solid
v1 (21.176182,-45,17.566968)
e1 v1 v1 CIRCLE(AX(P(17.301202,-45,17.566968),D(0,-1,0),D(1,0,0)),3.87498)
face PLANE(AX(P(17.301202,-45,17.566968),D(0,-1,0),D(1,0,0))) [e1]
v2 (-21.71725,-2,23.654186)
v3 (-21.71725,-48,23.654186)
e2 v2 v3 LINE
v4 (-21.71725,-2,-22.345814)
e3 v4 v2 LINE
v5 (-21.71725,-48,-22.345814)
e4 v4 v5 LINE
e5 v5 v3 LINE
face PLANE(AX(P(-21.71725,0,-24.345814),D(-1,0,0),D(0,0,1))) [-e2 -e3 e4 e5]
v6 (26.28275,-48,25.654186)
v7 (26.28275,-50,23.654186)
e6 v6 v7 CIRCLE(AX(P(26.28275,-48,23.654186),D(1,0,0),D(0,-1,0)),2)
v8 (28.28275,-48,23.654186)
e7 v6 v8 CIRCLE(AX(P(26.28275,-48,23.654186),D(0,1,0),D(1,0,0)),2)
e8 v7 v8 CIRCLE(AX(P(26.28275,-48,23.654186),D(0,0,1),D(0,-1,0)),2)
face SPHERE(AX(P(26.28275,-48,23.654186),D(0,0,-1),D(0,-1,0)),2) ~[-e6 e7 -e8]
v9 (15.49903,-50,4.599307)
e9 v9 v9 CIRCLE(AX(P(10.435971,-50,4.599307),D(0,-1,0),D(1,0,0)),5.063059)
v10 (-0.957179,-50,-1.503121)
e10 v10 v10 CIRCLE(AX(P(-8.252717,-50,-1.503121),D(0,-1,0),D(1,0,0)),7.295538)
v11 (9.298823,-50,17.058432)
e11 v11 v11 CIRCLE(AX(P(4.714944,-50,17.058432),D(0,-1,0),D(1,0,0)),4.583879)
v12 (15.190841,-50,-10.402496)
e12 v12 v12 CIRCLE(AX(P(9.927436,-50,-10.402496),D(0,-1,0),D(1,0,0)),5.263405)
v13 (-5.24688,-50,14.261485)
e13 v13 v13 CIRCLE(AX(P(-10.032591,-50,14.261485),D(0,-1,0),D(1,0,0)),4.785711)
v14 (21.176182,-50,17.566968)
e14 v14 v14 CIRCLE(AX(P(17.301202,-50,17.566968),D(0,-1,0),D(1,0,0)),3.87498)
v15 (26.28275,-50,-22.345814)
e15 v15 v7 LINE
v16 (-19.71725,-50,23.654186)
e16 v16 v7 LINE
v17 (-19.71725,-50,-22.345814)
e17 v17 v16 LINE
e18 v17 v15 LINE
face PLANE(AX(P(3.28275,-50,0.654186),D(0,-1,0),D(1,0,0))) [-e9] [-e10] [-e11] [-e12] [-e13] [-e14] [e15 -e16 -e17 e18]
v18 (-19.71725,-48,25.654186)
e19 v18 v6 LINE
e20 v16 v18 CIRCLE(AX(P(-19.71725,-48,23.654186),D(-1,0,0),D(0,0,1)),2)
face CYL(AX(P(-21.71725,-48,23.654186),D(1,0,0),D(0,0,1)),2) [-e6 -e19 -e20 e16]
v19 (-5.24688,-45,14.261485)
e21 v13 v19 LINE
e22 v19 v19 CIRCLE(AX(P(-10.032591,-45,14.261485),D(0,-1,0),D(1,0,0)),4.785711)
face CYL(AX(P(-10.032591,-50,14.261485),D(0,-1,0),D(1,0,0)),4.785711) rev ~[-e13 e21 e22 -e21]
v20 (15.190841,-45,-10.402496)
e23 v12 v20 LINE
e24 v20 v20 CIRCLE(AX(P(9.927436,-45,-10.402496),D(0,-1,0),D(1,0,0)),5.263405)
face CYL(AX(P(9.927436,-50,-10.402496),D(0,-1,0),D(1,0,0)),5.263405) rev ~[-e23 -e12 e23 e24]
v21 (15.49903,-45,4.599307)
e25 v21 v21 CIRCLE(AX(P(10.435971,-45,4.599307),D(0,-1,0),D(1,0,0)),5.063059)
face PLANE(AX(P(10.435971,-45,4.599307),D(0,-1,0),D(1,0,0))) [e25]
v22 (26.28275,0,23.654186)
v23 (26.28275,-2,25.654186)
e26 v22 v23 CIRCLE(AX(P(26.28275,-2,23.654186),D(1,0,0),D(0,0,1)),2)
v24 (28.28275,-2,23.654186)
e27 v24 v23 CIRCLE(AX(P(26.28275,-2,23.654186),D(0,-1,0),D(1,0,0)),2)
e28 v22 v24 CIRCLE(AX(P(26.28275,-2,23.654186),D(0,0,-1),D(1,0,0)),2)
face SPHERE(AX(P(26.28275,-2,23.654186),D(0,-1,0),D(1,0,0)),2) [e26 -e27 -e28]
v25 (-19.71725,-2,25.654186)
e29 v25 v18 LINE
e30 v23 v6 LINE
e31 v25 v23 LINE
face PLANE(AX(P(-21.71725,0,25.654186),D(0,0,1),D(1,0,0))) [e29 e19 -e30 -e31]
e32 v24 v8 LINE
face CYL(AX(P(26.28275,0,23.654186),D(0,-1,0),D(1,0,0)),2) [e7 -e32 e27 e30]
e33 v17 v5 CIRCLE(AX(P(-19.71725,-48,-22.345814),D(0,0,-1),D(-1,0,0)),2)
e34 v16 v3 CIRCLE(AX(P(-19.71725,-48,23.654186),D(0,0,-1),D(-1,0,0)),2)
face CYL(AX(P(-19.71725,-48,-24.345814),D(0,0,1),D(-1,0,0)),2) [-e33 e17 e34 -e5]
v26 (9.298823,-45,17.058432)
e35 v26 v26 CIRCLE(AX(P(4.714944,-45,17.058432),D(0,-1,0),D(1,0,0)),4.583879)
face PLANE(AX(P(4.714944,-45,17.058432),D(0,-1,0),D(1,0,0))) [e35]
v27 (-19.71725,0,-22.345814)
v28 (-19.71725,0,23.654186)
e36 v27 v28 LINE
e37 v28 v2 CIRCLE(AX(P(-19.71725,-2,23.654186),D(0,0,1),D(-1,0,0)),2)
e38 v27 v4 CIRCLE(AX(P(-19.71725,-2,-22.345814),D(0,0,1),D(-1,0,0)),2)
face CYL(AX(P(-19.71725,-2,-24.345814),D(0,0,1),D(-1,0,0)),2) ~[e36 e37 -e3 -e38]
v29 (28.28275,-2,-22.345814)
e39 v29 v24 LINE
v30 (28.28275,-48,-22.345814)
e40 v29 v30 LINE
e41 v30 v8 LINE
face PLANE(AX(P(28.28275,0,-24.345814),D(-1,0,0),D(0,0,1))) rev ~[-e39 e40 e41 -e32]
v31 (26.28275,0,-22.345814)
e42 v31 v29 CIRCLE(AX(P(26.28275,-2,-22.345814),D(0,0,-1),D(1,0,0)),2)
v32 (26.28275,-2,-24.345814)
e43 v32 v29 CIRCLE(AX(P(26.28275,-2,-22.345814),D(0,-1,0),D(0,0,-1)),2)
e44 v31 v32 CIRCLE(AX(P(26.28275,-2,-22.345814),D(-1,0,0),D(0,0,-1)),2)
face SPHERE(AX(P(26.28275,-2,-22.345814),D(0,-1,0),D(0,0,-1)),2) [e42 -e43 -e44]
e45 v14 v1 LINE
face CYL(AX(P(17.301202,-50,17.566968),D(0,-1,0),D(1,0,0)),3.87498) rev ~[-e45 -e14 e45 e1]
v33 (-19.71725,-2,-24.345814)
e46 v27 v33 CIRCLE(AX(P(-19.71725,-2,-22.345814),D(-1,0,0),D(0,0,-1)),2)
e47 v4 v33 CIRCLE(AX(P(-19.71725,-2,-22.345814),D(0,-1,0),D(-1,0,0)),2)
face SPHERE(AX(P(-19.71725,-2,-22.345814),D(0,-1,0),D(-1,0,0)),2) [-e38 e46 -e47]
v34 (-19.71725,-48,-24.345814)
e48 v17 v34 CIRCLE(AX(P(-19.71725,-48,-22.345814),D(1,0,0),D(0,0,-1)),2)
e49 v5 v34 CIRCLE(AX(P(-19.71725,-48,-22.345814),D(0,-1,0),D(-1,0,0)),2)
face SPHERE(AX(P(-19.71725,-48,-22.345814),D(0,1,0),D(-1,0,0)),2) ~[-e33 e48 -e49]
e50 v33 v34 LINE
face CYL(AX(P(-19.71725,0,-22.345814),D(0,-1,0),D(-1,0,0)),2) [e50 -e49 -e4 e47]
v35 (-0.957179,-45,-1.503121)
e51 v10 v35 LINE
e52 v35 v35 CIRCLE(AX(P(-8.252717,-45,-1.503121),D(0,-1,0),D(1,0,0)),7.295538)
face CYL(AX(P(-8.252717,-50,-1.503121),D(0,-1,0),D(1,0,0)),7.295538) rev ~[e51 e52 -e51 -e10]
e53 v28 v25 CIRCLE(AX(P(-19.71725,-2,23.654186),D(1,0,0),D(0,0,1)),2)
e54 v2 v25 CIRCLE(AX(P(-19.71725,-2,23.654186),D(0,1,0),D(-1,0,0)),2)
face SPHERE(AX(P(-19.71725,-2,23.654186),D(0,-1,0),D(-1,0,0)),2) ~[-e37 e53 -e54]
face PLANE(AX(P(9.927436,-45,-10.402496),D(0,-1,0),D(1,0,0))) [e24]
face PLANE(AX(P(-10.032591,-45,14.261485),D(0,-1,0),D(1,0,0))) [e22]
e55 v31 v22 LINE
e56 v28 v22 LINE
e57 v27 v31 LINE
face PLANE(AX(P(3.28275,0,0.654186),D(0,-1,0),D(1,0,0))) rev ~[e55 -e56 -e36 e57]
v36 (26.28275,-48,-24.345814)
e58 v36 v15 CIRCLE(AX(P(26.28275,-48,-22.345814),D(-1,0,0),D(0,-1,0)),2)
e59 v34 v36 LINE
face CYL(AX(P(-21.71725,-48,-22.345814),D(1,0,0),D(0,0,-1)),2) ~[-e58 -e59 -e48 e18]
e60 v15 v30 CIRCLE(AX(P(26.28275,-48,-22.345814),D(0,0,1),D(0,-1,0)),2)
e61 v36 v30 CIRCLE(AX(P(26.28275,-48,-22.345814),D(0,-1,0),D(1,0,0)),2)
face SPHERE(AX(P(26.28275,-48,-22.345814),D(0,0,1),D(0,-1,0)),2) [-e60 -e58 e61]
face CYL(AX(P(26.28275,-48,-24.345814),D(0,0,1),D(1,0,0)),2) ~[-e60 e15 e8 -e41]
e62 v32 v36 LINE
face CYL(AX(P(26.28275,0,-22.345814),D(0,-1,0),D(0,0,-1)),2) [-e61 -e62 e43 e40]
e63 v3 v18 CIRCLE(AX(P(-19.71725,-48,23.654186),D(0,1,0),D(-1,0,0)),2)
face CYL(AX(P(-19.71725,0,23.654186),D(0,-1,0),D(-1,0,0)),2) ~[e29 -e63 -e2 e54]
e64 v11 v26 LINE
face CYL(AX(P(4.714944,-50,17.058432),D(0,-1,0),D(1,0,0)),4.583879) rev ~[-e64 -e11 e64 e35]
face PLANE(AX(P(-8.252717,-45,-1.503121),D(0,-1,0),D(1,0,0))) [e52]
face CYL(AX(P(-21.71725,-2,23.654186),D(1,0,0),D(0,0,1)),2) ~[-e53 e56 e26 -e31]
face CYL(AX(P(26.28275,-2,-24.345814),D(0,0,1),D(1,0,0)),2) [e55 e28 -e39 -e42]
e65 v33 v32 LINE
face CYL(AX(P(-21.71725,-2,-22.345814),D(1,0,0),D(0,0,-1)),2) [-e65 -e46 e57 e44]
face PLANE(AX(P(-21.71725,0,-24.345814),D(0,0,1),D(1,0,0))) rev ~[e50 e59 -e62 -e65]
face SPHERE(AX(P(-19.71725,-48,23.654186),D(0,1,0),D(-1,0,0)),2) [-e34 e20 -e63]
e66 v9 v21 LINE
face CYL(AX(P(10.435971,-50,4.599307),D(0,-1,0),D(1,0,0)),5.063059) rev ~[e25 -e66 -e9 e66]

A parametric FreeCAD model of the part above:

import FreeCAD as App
import Part
import Sketcher
from FreeCAD import Vector
Q = App.Units.Quantity

doc = App.newDocument("Part")
params = doc.addObject("Spreadsheet::Sheet", "Params")
for row, (alias, value) in enumerate([
    ("sketch1_width", "50 mm"),
    ("pad1_length", "50 mm"),
    ("fillet_radius", "2 mm"),
    ("pocket1_length", "5 mm"),
], start=1):
    params.set(f"A{row}", alias)
    params.set(f"B{row}", "=" + value)
    params.setAlias(f"B{row}", alias)

body = doc.addObject("PartDesign::Body", "Body")

sketch1 = body.newObject("Sketcher::SketchObject", "Sketch")
sketch1.AttachmentSupport = (doc.getObject("XZ_Plane"), [""])
sketch1.MapMode = "FlatFace"
sketch1.addGeometry(Part.LineSegment(Vector(-22, 26, 0), Vector(-22, -24, 0)), False)
sketch1.addGeometry(Part.LineSegment(Vector(-22, -24, 0), Vector(28, -24, 0)), False)
sketch1.addGeometry(Part.LineSegment(Vector(28, -24, 0), Vector(28, 26, 0)), False)
sketch1.addGeometry(Part.LineSegment(Vector(28, 26, 0), Vector(-22, 26, 0)), False)
sketch1.addConstraint(Sketcher.Constraint("Coincident", 0, 2, 1, 1))
sketch1.addConstraint(Sketcher.Constraint("Coincident", 1, 2, 2, 1))
sketch1.addConstraint(Sketcher.Constraint("Coincident", 2, 2, 3, 1))
sketch1.addConstraint(Sketcher.Constraint("Coincident", 3, 2, 0, 1))
sketch1.addConstraint(Sketcher.Constraint("Vertical", 0))
sketch1.addConstraint(Sketcher.Constraint("Horizontal", 1))
sketch1.addConstraint(Sketcher.Constraint("Vertical", 2))
sketch1.addConstraint(Sketcher.Constraint("Horizontal", 3))
sketch1.addConstraint(Sketcher.Constraint("Equal", 3, 0))
sketch1.addConstraint(Sketcher.Constraint("DistanceX", 1, 1, 1, 2, Q("50 mm")))
sketch1.addConstraint(Sketcher.Constraint("DistanceX", 0, 2, -1, 1, Q("21.71725 mm")))
sketch1.addConstraint(Sketcher.Constraint("DistanceY", 0, 2, -1, 1, Q("24.345814 mm")))
sketch1.setExpression("Constraints[9]", "Params.sketch1_width")
pad1 = body.newObject("PartDesign::Pad", "Pad")
pad1.Profile = sketch1
pad1.setExpression("Length", "Params.pad1_length")
doc.recompute()

fillet = body.newObject("PartDesign::Fillet", "Fillet")
fillet.Base = (pad1, ["Edge1"])
fillet.UseAllEdges = True
fillet.setExpression("Radius", "Params.fillet_radius")

sketch2 = body.newObject("Sketcher::SketchObject", "Sketch001")
sketch2.AttachmentSupport = (doc.getObject("XZ_Plane"), [""])
sketch2.MapMode = "FlatFace"
sketch2.AttachmentOffset = App.Placement(Vector(0, 0, 50), App.Rotation())
sketch2.addGeometry(Part.Circle(Vector(-10, 14.3, 0), Vector(0, 0, 1), 4.8), False)
sketch2.addGeometry(Part.Circle(Vector(-8.3, -1.5, 0), Vector(0, 0, 1), 7.3), False)
sketch2.addGeometry(Part.Circle(Vector(10.4, 4.6, 0), Vector(0, 0, 1), 5.1), False)
sketch2.addGeometry(Part.Circle(Vector(4.7, 17.1, 0), Vector(0, 0, 1), 4.6), False)
sketch2.addGeometry(Part.Circle(Vector(17.3, 17.6, 0), Vector(0, 0, 1), 3.9), False)
sketch2.addGeometry(Part.Circle(Vector(9.9, -10.4, 0), Vector(0, 0, 1), 5.3), False)
sketch2.addConstraint(Sketcher.Constraint("Diameter", 4, Q("7.74996 mm")))
sketch2.addConstraint(Sketcher.Constraint("Diameter", 5, Q("10.52681 mm")))
sketch2.addConstraint(Sketcher.Constraint("Diameter", 0, Q("9.571422 mm")))
sketch2.addConstraint(Sketcher.Constraint("Diameter", 1, Q("14.591076 mm")))
sketch2.addConstraint(Sketcher.Constraint("Diameter", 2, Q("10.126118 mm")))
sketch2.addConstraint(Sketcher.Constraint("Diameter", 3, Q("9.167758 mm")))
sketch2.addConstraint(Sketcher.Constraint("DistanceX", -1, 1, 4, 3, Q("17.301202 mm")))
sketch2.addConstraint(Sketcher.Constraint("DistanceX", 0, 3, -1, 1, Q("10.032591 mm")))
sketch2.addConstraint(Sketcher.Constraint("DistanceY", 1, 3, -1, 1, Q("1.503121 mm")))
sketch2.addConstraint(Sketcher.Constraint("DistanceX", -1, 1, 2, 3, Q("10.435971 mm")))
sketch2.addConstraint(Sketcher.Constraint("DistanceY", -1, 1, 3, 3, Q("17.058432 mm")))
sketch2.addConstraint(Sketcher.Constraint("DistanceY", 2, 3, 0, 3, Q("9.662178 mm")))
sketch2.addConstraint(Sketcher.Constraint("DistanceX", 1, 3, 3, 3, Q("12.967661 mm")))
sketch2.addConstraint(Sketcher.Constraint("DistanceX", 3, 3, 4, 3, Q("12.586258 mm")))
sketch2.addConstraint(Sketcher.Constraint("DistanceY", 2, 3, 4, 3, Q("12.967661 mm")))
sketch2.addConstraint(Sketcher.Constraint("DistanceY", 1, 3, 4, 3, Q("19.070089 mm")))
sketch2.addConstraint(Sketcher.Constraint("DistanceY", 5, 3, 0, 3, Q("24.663981 mm")))
sketch2.addConstraint(Sketcher.Constraint("DistanceX", -1, 1, 5, 3, Q("9.927436 mm")))
pocket1 = body.newObject("PartDesign::Pocket", "Pocket")
pocket1.Profile = sketch2
pocket1.setExpression("Length", "Params.pocket1_length")

doc.recompute()
